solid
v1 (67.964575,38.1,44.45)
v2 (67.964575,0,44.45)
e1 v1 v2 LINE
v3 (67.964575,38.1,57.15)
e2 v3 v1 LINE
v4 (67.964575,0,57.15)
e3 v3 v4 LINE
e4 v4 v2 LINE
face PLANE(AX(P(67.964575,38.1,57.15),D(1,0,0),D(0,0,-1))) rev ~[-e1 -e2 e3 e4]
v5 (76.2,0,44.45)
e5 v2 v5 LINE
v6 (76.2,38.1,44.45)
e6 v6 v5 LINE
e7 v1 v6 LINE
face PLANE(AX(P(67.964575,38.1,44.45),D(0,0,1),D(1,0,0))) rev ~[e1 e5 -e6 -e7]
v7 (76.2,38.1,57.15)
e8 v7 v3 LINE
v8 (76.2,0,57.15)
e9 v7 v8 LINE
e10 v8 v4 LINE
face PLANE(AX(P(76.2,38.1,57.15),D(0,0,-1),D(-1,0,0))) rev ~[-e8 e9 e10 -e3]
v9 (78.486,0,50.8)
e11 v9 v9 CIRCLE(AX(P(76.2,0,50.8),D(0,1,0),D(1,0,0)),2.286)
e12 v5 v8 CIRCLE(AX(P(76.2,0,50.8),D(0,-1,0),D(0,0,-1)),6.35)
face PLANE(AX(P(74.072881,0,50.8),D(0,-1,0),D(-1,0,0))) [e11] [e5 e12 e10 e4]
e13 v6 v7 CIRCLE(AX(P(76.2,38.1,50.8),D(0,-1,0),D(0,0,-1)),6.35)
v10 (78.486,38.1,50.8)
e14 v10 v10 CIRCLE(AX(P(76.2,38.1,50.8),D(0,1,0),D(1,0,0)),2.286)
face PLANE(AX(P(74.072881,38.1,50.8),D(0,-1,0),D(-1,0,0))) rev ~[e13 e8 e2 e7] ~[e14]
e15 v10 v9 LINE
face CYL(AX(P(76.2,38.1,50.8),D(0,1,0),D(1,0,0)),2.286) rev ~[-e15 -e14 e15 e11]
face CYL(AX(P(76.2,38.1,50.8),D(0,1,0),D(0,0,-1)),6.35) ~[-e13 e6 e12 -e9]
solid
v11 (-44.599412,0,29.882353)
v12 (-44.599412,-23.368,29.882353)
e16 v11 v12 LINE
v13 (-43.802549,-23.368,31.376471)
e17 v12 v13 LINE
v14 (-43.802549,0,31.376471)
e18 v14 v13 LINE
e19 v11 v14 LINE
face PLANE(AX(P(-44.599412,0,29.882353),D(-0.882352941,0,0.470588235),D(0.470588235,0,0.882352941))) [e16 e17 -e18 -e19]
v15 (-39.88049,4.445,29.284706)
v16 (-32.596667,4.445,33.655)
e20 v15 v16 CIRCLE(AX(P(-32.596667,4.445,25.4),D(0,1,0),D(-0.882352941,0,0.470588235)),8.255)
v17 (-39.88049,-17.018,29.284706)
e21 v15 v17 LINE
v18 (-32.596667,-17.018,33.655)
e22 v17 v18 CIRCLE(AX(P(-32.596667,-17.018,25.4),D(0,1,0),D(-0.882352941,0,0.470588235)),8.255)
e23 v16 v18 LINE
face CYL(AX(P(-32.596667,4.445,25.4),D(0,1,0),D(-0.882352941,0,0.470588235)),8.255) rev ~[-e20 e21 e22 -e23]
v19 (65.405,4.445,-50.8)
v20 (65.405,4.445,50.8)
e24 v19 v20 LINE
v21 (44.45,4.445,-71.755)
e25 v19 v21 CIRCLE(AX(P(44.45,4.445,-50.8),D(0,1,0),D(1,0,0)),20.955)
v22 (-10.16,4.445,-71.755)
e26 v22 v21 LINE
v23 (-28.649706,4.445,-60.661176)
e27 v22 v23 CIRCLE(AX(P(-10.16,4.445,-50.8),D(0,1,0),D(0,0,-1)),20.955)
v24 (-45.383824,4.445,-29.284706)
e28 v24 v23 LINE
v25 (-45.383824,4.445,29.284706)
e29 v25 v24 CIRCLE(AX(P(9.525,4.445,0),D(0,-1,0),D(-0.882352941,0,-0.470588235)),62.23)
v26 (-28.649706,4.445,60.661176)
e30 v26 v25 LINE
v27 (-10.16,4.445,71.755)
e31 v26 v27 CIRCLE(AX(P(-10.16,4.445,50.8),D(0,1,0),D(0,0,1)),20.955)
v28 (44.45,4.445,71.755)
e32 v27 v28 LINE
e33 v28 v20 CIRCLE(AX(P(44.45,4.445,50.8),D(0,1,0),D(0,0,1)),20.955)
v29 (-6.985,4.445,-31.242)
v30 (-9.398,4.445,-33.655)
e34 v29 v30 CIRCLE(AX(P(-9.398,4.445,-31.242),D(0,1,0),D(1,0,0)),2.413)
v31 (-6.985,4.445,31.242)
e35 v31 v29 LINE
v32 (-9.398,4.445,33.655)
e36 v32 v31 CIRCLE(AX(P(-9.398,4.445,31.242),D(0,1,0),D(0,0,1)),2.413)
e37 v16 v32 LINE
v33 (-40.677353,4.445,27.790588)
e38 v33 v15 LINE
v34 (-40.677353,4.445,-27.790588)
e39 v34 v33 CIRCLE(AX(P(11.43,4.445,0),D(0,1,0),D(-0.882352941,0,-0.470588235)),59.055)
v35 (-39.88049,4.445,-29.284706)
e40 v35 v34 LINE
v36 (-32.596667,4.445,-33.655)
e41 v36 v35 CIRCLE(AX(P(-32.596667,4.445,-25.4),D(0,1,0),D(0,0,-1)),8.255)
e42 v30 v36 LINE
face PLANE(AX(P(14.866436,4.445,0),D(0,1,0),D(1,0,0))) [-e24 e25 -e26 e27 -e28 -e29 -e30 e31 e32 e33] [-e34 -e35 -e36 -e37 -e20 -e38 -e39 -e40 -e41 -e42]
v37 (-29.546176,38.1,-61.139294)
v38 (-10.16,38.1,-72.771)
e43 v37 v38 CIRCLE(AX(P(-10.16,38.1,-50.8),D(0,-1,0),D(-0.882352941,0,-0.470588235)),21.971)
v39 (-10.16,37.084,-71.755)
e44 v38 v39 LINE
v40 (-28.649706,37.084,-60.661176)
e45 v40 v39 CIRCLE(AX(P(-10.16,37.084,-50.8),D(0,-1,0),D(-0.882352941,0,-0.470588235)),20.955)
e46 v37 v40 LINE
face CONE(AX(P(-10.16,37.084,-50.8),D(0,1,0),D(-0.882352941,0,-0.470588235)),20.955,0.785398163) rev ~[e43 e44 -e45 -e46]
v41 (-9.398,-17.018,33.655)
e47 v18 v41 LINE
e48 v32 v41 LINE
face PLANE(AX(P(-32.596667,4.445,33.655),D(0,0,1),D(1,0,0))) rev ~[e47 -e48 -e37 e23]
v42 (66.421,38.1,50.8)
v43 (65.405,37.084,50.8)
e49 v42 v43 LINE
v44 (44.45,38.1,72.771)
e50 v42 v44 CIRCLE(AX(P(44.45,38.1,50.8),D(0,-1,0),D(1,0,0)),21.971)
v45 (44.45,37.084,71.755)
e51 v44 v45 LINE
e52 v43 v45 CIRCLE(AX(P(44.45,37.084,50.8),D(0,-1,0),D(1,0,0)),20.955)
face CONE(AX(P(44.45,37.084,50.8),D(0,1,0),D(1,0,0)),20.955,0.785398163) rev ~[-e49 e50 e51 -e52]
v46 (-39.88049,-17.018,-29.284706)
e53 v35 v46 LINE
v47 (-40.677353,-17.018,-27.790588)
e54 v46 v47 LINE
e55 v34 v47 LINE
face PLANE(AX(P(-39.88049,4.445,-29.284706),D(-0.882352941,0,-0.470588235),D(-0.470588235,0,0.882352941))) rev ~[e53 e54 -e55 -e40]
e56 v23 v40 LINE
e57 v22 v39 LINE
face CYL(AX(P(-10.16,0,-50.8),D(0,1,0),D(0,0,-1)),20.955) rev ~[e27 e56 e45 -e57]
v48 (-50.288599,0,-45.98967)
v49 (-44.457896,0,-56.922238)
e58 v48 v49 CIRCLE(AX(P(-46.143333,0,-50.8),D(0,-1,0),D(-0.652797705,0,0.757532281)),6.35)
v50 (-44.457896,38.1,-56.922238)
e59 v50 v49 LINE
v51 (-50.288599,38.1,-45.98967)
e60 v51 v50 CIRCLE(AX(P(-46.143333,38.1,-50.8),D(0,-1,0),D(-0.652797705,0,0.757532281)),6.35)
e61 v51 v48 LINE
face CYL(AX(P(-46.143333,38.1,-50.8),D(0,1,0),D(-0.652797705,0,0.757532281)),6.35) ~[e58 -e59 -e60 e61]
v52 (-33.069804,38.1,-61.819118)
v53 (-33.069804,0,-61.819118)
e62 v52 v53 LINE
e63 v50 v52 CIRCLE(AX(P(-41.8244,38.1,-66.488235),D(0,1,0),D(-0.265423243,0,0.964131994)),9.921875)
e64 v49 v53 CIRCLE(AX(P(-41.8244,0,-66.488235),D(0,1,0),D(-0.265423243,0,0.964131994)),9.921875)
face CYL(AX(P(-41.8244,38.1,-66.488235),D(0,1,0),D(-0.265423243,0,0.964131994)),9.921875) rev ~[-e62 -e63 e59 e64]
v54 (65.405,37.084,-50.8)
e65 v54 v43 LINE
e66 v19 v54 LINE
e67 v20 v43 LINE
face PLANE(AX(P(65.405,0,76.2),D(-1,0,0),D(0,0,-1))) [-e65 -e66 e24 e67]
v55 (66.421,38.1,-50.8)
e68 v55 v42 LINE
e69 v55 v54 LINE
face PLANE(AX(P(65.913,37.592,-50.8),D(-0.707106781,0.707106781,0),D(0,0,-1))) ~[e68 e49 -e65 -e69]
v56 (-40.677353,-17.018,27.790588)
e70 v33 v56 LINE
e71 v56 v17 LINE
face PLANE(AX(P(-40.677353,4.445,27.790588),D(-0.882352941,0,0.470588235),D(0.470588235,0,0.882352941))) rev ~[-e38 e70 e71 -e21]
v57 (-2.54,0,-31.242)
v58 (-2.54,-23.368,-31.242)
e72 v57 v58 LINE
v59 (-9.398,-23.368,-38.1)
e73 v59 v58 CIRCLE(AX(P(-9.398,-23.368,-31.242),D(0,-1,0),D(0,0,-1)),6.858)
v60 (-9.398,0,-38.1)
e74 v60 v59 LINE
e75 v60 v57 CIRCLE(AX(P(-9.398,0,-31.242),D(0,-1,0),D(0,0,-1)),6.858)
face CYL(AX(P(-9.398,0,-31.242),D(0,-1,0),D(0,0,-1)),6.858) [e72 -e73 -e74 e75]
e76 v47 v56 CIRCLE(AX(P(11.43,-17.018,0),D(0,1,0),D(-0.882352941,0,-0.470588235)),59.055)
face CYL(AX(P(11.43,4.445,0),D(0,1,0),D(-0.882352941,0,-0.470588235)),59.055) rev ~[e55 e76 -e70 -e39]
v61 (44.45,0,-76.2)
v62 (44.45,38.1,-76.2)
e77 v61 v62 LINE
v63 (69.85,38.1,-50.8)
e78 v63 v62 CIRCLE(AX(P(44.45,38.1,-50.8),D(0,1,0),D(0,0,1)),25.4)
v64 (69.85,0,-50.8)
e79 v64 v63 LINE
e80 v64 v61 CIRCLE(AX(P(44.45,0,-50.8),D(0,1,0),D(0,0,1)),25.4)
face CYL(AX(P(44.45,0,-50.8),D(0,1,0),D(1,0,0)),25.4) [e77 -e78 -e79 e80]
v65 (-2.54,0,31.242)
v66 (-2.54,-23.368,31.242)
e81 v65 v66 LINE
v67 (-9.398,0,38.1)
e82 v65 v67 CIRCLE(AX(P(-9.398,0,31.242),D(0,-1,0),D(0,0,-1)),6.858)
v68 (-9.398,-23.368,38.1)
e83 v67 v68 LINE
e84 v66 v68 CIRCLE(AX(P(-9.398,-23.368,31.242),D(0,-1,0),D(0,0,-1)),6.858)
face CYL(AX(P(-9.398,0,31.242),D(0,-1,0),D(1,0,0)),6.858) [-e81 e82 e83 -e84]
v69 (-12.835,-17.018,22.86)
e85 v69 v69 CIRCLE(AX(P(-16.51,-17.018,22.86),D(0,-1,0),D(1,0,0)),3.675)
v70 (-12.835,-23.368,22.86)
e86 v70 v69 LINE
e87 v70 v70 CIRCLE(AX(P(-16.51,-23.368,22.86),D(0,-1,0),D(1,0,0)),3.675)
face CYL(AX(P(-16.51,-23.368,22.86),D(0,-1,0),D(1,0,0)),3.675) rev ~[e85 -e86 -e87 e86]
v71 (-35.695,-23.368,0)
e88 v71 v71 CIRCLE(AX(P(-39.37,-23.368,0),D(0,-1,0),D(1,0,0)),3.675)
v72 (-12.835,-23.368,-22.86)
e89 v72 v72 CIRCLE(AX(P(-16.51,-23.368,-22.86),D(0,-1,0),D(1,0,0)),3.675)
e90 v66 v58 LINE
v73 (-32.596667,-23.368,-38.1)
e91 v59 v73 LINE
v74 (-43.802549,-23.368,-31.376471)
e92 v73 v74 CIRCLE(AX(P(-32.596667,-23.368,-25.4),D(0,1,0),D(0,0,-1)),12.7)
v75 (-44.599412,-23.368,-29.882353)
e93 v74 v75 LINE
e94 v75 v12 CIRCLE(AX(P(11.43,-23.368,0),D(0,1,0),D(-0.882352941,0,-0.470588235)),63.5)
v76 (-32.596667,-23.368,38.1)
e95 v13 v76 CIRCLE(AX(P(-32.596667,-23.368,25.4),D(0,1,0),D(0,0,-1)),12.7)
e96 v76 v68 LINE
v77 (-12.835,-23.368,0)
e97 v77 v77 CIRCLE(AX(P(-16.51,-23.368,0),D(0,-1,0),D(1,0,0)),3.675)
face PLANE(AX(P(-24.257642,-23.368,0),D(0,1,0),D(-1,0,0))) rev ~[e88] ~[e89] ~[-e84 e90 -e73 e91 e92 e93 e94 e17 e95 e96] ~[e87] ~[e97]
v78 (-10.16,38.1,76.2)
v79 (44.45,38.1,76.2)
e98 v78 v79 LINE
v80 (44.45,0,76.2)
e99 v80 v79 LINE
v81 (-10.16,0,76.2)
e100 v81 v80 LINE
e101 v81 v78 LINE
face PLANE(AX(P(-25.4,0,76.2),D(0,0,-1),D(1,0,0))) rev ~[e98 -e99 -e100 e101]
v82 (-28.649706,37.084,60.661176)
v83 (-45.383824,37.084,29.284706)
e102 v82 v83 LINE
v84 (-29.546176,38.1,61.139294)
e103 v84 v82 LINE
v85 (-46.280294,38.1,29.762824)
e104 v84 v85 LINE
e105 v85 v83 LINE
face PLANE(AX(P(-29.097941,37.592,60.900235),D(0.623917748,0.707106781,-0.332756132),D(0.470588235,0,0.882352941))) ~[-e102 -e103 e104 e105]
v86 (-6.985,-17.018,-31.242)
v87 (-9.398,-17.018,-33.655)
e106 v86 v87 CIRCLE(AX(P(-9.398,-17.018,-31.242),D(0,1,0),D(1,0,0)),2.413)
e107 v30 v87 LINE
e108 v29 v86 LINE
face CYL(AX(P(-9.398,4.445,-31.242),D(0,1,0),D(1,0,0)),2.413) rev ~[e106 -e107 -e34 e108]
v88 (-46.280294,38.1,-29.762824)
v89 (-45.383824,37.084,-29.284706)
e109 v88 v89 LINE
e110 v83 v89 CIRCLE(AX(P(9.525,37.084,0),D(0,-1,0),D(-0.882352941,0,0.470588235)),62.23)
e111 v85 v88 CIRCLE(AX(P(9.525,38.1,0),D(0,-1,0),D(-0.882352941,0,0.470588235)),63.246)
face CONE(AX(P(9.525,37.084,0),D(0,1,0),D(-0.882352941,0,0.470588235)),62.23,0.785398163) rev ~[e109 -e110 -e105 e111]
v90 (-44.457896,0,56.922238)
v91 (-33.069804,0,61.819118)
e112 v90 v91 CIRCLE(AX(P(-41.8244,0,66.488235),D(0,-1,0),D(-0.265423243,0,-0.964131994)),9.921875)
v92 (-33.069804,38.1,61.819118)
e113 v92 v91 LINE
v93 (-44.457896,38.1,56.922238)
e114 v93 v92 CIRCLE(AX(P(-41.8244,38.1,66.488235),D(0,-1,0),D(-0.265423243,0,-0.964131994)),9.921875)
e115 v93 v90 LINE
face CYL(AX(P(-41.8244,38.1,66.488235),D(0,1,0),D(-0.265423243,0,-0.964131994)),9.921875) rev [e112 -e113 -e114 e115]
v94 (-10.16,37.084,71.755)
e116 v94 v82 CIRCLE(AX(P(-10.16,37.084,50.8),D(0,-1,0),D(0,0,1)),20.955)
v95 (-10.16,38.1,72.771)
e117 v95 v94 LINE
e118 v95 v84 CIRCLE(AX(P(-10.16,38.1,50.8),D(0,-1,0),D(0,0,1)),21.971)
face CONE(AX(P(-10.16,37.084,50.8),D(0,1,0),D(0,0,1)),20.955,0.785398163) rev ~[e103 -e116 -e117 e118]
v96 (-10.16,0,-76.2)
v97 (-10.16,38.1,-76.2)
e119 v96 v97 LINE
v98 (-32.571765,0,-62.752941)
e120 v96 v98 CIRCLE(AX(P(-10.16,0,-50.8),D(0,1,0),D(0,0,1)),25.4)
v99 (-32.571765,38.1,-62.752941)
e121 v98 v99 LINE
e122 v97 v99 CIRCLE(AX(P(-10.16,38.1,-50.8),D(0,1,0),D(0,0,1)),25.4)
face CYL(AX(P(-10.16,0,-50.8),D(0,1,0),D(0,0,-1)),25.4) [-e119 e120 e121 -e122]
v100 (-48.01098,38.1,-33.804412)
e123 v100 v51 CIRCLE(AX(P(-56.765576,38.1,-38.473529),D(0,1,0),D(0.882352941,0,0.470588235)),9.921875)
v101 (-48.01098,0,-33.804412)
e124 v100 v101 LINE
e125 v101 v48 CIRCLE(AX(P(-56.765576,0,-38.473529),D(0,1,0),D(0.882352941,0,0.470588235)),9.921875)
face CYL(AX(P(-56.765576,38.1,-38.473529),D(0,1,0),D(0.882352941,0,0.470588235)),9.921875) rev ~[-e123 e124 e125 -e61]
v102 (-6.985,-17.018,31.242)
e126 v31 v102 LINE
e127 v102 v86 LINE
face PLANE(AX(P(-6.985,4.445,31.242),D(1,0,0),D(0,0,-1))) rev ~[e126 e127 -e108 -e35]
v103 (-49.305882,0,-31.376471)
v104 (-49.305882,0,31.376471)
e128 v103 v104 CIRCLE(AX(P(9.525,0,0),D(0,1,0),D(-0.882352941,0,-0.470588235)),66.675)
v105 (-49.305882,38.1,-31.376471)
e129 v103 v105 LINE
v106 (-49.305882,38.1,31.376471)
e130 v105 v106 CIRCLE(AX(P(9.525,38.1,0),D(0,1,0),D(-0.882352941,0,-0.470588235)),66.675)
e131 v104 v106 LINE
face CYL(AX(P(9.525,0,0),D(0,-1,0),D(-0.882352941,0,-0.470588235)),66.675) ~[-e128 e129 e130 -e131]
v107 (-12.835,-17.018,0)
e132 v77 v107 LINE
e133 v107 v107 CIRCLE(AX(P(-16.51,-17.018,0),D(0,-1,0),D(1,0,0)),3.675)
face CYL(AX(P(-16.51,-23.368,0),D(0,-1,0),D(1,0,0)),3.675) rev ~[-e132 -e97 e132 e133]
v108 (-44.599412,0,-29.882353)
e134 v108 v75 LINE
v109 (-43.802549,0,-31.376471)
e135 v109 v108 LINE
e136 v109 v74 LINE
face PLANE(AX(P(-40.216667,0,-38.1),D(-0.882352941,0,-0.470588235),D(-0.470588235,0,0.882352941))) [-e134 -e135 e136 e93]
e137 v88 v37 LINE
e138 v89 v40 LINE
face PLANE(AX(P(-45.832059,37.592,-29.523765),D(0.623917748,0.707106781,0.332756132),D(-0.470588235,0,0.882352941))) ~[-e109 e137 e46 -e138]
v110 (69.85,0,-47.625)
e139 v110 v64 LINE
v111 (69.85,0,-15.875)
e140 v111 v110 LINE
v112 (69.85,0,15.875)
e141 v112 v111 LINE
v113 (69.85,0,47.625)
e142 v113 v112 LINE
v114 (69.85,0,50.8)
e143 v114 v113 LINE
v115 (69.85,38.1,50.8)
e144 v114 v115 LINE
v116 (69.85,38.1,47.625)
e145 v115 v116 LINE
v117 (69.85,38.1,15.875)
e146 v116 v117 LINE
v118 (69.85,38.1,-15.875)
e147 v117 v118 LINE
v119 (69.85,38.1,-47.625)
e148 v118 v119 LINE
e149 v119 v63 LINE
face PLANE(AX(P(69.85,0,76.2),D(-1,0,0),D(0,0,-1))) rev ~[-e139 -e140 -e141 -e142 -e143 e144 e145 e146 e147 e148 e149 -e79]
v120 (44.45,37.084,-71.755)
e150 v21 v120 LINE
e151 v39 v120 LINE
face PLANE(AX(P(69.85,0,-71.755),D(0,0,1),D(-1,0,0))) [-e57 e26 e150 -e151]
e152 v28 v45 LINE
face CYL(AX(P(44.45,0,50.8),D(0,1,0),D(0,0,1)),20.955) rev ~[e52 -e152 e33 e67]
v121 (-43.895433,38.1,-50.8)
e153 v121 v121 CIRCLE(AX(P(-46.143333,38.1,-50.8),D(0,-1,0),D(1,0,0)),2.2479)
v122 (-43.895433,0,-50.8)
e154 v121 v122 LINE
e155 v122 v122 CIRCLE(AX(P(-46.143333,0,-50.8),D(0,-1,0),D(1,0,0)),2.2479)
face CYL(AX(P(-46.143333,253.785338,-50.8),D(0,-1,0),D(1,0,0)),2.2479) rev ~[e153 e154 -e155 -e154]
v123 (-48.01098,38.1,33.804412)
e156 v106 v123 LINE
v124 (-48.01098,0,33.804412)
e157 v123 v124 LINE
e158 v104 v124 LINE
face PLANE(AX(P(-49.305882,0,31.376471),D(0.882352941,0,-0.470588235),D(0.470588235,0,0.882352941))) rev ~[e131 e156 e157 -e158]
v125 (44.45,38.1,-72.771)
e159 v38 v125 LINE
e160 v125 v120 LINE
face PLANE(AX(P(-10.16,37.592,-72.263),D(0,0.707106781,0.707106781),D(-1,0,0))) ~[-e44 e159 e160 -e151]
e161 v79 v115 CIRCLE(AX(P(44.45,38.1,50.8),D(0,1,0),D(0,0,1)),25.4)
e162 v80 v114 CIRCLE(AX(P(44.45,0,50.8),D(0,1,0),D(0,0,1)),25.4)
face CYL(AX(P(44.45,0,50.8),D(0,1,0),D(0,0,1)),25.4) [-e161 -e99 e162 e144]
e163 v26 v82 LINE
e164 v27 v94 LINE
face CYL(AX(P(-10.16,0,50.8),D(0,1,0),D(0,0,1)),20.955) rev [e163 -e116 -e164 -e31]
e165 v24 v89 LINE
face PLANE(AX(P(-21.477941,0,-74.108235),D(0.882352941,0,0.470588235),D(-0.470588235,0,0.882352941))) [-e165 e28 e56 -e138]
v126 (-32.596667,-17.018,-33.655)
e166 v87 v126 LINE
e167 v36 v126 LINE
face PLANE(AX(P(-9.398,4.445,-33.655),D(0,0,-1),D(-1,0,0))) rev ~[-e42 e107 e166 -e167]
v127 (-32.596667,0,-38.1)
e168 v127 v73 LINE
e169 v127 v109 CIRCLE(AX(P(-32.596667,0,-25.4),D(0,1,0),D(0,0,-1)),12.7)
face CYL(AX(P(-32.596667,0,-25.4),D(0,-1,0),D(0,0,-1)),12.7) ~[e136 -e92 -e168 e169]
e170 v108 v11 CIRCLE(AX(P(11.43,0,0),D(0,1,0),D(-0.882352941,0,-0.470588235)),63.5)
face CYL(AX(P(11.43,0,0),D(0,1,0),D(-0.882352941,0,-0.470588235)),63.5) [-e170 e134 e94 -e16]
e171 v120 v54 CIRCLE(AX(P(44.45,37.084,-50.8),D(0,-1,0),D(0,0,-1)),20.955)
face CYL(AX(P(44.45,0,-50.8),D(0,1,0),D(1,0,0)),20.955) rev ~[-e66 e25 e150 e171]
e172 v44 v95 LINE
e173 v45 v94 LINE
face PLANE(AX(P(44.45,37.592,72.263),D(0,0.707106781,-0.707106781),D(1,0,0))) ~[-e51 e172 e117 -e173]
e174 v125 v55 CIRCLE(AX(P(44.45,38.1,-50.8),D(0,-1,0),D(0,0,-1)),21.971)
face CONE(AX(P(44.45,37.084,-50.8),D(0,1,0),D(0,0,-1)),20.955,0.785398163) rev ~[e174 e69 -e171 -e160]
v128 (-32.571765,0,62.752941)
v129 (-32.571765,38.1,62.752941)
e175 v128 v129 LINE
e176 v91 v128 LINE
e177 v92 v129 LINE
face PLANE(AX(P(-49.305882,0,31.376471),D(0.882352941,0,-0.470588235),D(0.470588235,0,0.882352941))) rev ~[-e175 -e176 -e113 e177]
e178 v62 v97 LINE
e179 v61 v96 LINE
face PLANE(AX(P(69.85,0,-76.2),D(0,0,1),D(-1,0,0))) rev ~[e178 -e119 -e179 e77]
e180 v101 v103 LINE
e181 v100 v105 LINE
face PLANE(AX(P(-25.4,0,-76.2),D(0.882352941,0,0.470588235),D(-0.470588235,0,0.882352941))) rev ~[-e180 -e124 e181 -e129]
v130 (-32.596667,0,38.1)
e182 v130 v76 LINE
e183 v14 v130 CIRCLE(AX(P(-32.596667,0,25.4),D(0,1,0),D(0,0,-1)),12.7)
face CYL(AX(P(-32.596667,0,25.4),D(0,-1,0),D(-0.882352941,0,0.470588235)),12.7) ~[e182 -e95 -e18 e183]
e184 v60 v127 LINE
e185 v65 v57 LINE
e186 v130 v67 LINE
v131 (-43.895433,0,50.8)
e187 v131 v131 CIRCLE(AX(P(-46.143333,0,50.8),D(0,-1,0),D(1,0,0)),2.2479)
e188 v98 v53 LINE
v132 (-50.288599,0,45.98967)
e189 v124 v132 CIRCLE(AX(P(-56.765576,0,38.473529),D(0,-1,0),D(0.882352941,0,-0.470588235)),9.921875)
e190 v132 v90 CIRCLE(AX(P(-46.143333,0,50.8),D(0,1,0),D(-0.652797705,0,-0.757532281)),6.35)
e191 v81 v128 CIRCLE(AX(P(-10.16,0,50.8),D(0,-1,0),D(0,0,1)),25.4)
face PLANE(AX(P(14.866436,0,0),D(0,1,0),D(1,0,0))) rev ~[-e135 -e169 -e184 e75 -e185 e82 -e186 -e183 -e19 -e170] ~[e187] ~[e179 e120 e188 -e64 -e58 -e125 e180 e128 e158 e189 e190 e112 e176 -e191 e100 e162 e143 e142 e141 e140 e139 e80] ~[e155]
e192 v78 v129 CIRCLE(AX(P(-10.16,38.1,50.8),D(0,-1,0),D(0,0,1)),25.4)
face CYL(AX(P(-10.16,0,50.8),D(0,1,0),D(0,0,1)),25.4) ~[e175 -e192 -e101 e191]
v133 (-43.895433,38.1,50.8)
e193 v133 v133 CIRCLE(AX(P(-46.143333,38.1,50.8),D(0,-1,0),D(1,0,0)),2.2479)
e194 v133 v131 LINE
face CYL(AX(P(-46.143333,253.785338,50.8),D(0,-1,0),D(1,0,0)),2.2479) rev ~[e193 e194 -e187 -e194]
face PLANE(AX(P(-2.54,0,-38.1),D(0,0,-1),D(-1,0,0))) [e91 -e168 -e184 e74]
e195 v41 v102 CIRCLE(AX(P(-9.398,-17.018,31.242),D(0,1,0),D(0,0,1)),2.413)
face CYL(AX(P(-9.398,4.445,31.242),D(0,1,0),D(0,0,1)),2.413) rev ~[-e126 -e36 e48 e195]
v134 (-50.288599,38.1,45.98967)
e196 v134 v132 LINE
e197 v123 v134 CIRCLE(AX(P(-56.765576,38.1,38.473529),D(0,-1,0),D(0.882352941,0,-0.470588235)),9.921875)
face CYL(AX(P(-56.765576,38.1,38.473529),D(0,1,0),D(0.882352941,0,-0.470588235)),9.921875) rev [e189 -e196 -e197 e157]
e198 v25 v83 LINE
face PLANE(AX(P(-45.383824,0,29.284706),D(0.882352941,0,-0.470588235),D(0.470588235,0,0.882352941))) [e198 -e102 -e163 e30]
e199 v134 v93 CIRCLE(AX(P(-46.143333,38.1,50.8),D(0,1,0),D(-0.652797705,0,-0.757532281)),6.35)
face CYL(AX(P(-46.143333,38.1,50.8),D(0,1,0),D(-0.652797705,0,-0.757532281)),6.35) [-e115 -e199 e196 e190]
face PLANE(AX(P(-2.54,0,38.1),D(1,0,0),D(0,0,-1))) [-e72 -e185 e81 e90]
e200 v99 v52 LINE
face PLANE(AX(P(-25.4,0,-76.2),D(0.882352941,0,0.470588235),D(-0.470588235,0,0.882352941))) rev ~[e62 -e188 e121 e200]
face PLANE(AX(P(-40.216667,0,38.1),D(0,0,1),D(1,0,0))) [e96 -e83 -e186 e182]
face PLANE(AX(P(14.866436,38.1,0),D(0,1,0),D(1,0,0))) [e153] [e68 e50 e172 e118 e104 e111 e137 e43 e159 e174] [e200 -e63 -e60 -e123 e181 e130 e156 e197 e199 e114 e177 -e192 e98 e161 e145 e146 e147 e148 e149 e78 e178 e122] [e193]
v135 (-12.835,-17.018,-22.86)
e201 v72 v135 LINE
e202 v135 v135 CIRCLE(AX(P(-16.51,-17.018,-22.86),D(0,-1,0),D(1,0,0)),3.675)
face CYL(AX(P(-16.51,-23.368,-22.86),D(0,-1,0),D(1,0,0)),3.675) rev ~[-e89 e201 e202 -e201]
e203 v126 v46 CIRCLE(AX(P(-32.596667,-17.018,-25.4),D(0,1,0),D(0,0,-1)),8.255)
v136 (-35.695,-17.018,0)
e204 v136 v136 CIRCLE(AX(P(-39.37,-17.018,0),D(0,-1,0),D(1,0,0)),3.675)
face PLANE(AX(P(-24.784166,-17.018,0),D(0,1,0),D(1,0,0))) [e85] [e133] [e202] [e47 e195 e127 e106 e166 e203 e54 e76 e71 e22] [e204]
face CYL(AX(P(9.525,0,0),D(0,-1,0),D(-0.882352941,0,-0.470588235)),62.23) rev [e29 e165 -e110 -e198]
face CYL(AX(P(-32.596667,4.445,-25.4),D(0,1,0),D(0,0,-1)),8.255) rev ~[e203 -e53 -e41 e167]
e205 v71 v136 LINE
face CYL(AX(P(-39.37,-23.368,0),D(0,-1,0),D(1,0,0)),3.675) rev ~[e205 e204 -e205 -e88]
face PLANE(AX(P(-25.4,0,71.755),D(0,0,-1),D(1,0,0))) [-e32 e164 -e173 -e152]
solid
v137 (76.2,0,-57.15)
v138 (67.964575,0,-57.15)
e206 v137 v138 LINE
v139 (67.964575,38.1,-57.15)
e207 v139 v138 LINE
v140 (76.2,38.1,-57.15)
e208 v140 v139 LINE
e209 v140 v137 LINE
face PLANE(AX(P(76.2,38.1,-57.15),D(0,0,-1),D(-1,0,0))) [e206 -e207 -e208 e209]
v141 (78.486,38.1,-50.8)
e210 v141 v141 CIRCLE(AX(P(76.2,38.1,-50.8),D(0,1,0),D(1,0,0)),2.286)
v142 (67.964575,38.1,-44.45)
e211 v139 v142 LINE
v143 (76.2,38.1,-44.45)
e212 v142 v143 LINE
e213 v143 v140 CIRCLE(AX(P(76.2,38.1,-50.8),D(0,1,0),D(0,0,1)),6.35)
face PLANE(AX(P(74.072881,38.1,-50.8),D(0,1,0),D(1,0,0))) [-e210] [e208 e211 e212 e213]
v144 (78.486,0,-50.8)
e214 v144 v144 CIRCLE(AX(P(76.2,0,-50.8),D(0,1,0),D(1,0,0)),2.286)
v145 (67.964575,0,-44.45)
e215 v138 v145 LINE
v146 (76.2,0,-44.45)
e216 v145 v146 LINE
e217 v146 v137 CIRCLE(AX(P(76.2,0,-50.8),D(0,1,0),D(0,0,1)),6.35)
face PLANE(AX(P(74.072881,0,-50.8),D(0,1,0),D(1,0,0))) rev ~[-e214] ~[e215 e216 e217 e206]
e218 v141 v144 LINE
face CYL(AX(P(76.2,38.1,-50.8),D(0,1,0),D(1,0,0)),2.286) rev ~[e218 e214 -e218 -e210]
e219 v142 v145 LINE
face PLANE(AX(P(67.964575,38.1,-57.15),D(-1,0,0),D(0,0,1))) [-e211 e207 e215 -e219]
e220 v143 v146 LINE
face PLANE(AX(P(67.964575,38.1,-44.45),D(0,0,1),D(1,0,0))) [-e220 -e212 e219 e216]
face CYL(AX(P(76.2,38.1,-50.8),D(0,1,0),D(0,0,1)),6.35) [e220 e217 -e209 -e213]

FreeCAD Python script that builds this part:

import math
import FreeCAD as App
import Part
import Sketcher
Q = App.Units.Quantity


def edges_at(feature, points):
    """Names of the edges that pass closest to the given points."""
    edges = feature.Shape.Edges
    near = lambda p: min(range(len(edges)), key=lambda i: edges[i].distToShape(Part.Vertex(*p))[0])
    return sorted({f"Edge{near(p) + 1}" for p in points})


def faces_at(feature, points):
    """Names of the faces that lie closest to the given points."""
    faces = feature.Shape.Faces
    near = lambda p: min(range(len(faces)), key=lambda i: faces[i].distToShape(Part.Vertex(*p))[0])
    return sorted({f"Face{near(p) + 1}" for p in points})

doc = App.newDocument("Part")
body = doc.addObject("PartDesign::Body", "Body")

# Sketch on XZ plane
sketch1 = body.newObject("Sketcher::SketchObject", "Sketch")
sketch1.AttachmentSupport = (doc.getObject("XZ_Plane"), [""])
sketch1.MapMode = "FlatFace"
sketch1.addGeometry([
    Part.LineSegment(App.Vector(-25, 76, 0), App.Vector(70, 76, 0)),  # 0
    Part.LineSegment(App.Vector(70, 76, 0), App.Vector(70, -76, 0)),  # 1
    Part.LineSegment(App.Vector(70, -76, 0), App.Vector(-25, -76, 0)),  # 2
    Part.LineSegment(App.Vector(-25, -76, 0), App.Vector(-49, -31, 0)),  # 3
    Part.ArcOfCircle(Part.Circle(App.Vector(10, 0, 0), App.Vector(0, 0, 1), 67), math.radians(152), math.radians(208)),  # 4
    Part.LineSegment(App.Vector(-49, 31, 0), App.Vector(-25, 76, 0)),  # 5
], False)
sketch1.addConstraint([
    Sketcher.Constraint("Coincident", 0, 2, 1, 1),
    Sketcher.Constraint("Coincident", 1, 2, 2, 1),
    Sketcher.Constraint("Coincident", 2, 2, 3, 1),
    Sketcher.Constraint("Tangent", 3, 2, 4, 2),
    Sketcher.Constraint("Tangent", 4, 1, 5, 1),
    Sketcher.Constraint("Coincident", 5, 2, 0, 1),
    Sketcher.Constraint("Horizontal", 0),
    Sketcher.Constraint("Vertical", 1),
    Sketcher.Constraint("Horizontal", 2),
    Sketcher.Constraint("Symmetric", 3, 2, 4, 1, -1),
    Sketcher.Constraint("Vertical", 2, 2, 5, 2),
    Sketcher.Constraint("DistanceY", 1, 2, 1, 1, Q("6 in")),
    Sketcher.Constraint("Distance", 3, Q("2 in")),
    Sketcher.Constraint("DistanceX", 2, 2, -1, 1, Q("1 in")),
    Sketcher.Constraint("Radius", 4, Q("2.625 in")),
    Sketcher.Constraint("DistanceX", 0, 1, 0, 2, Q("3.75 in")),
])
pad1 = body.newObject("PartDesign::Pad", "Pad")
pad1.Profile = sketch1
pad1.Length = Q("1.5 in")
pad1.Reversed = True
doc.recompute()

fillet = body.newObject("PartDesign::Fillet", "Fillet")
fillet.Base = (pad1, edges_at(pad1, [
    (69.85, 19.05, 76.2),
    (-25.4, 19.05, 76.2),
    (-25.4, 19.05, -76.2),
    (69.85, 19.05, -76.2),
]))
fillet.Radius = Q("1 in")
doc.recompute()

thickness = body.newObject("PartDesign::Thickness", "Thickness")
thickness.Base = (fillet, faces_at(fillet, [(6.35, 38.1, 0)]))
thickness.Value = Q("0.175 in")
thickness.Reversed = True
thickness.Join = "Intersection"

# Sketch on XZ plane
sketch2 = body.newObject("Sketcher::SketchObject", "Sketch001")
sketch2.AttachmentSupport = (doc.getObject("XZ_Plane"), [""])
sketch2.MapMode = "FlatFace"
sketch2.addGeometry([
    Part.LineSegment(App.Vector(-3, -38, 0), App.Vector(-3, 38, 0)),  # 0
    Part.LineSegment(App.Vector(-3, 38, 0), App.Vector(-40, 38, 0)),  # 1
    Part.LineSegment(App.Vector(-40, 38, 0), App.Vector(-45, 30, 0)),  # 2
    Part.ArcOfCircle(Part.Circle(App.Vector(11, 0, 0), App.Vector(0, 0, 1), 64), math.radians(152), math.radians(208)),  # 3
    Part.LineSegment(App.Vector(-45, -30, 0), App.Vector(-40, -38, 0)),  # 4
    Part.LineSegment(App.Vector(-40, -38, 0), App.Vector(-3, -38, 0)),  # 5
], False)
sketch2.addConstraint([
    Sketcher.Constraint("Coincident", 0, 2, 1, 1),
    Sketcher.Constraint("Coincident", 1, 2, 2, 1),
    Sketcher.Constraint("Tangent", 2, 2, 3, 1),
    Sketcher.Constraint("Tangent", 3, 2, 4, 1),
    Sketcher.Constraint("Coincident", 4, 2, 5, 1),
    Sketcher.Constraint("Coincident", 5, 2, 0, 1),
    Sketcher.Constraint("Vertical", 0),
    Sketcher.Constraint("Horizontal", 1),
    Sketcher.Constraint("Horizontal", 5),
    Sketcher.Constraint("Symmetric", 2, 2, 3, 2, -1),
    Sketcher.Constraint("Vertical", 1, 2, 4, 2),
    Sketcher.Constraint("Radius", 3, Q("2.5 in")),
    Sketcher.Constraint("DistanceY", 0, 1, 0, 2, Q("3 in")),
    Sketcher.Constraint("DistanceX", 0, 2, -1, 1, Q("0.1 in")),
    Sketcher.Constraint("DistanceX", -1, 1, 3, 3, Q("0.45 in")),
    Sketcher.Constraint("DistanceX", 1, 2, 1, 1, 37.676667),
])
pad2 = body.newObject("PartDesign::Pad", "Pad001")
pad2.Profile = sketch2
pad2.Length = Q("0.92 in")
doc.recompute()

fillet2 = body.newObject("PartDesign::Fillet", "Fillet001")
fillet2.Base = (pad2, edges_at(pad2, [(-40.217, -11.684, 38.1), (-40.217, -11.684, -38.1)]))
fillet2.Radius = Q("0.5 in")
doc.recompute()

fillet3 = body.newObject("PartDesign::Fillet", "Fillet002")
fillet3.Base = (fillet2, edges_at(fillet2, [(-2.54, -11.684, 38.1), (-2.54, -11.684, -38.1)]))
fillet3.Radius = Q("0.27 in")

# Sketch on XZ plane
sketch3 = body.newObject("Sketcher::SketchObject", "Sketch002")
sketch3.AttachmentSupport = (doc.getObject("XZ_Plane"), [""])
sketch3.MapMode = "FlatFace"
sketch3.AttachmentOffset = App.Placement(App.Vector(0, 0, -0.175 * 25.4), App.Rotation())
sketch3.addGeometry([
    Part.LineSegment(App.Vector(-32.6, 33.7, 0), App.Vector(-9.4, 33.7, 0)),  # 0
    Part.ArcOfCircle(Part.Circle(App.Vector(-9.4, 31.2, 0), App.Vector(0, 0, 1), 2.4), math.radians(0), math.radians(90)),  # 1
    Part.LineSegment(App.Vector(-7, 31.2, 0), App.Vector(-7, -31.2, 0)),  # 2
    Part.ArcOfCircle(Part.Circle(App.Vector(-9.4, -31.2, 0), App.Vector(0, 0, 1), 2.4), math.radians(-90), math.radians(0)),  # 3
    Part.LineSegment(App.Vector(-9.4, -33.7, 0), App.Vector(-32.6, -33.7, 0)),  # 4
    Part.ArcOfCircle(Part.Circle(App.Vector(-32.6, -25.4, 0), App.Vector(0, 0, 1), 8.3), math.radians(-152), math.radians(-90)),  # 5
    Part.LineSegment(App.Vector(-39.9, -29.3, 0), App.Vector(-40.7, -27.8, 0)),  # 6
    Part.ArcOfCircle(Part.Circle(App.Vector(11.4, 0, 0), App.Vector(0, 0, 1), 59.1), math.radians(152), math.radians(208)),  # 7
    Part.LineSegment(App.Vector(-40.7, 27.8, 0), App.Vector(-39.9, 29.3, 0)),  # 8
    Part.ArcOfCircle(Part.Circle(App.Vector(-32.6, 25.4, 0), App.Vector(0, 0, 1), 8.3), math.radians(90), math.radians(152)),  # 9
], False)
sketch3.addConstraint([
    Sketcher.Constraint("Tangent", 0, 2, 1, 2),
    Sketcher.Constraint("Tangent", 1, 1, 2, 1),
    Sketcher.Constraint("Tangent", 2, 2, 3, 2),
    Sketcher.Constraint("Tangent", 3, 1, 4, 1),
    Sketcher.Constraint("Tangent", 4, 2, 5, 2),
    Sketcher.Constraint("Tangent", 5, 1, 6, 1),
    Sketcher.Constraint("Tangent", 6, 2, 7, 2),
    Sketcher.Constraint("Tangent", 7, 1, 8, 1),
    Sketcher.Constraint("Tangent", 8, 2, 9, 2),
    Sketcher.Constraint("Tangent", 9, 1, 0, 1),
    Sketcher.Constraint("Horizontal", 0),
    Sketcher.Constraint("Vertical", 2),
    Sketcher.Constraint("Horizontal", 4),
    Sketcher.Constraint("Equal", 1, 3),
    Sketcher.Constraint("Equal", 5, 9),
    Sketcher.Constraint("Symmetric", 5, 3, 9, 3, -1),
    Sketcher.Constraint("PointOnObject", 7, 3, -1),
    Sketcher.Constraint("DistanceY", 5, 3, -1, 1, Q("1 in")),
    Sketcher.Constraint("Radius", 1, Q("0.095 in")),
    Sketcher.Constraint("Radius", 5, Q("0.325 in")),
    Sketcher.Constraint("Radius", 7, Q("2.325 in")),
    Sketcher.Constraint("DistanceX", 1, 3, -1, 1, Q("0.37 in")),
    Sketcher.Constraint("DistanceX", -1, 1, 7, 3, Q("0.45 in")),
    Sketcher.Constraint("DistanceX", 0, 1, 0, 2, 23.198667),
])
pocket1 = body.newObject("PartDesign::Pocket", "Pocket")
pocket1.Profile = sketch3
pocket1.Length = Q("0.845 in")
pocket1.Reversed = True
doc.recompute()

chamfer = body.newObject("PartDesign::Chamfer", "Chamfer")
chamfer.Base = (pocket1, edges_at(pocket1, [
    (-37.017, 38.1, 44.973),
    (-20.941, 38.1, 68.769),
    (17.145, 38.1, 71.755),
    (59.267, 38.1, 65.617),
    (65.405, 38.1, 0),
    (59.267, 38.1, -65.617),
    (17.145, 38.1, -71.755),
    (-20.941, 38.1, -68.769),
    (-37.017, 38.1, -44.973),
    (-52.705, 38.1, 0),
]))
chamfer.Size = Q("0.04 in")

# Sketch on XZ plane
sketch4 = body.newObject("Sketcher::SketchObject", "Sketch003")
sketch4.AttachmentSupport = (doc.getObject("XZ_Plane"), [""])
sketch4.MapMode = "FlatFace"
sketch4.AttachmentOffset = App.Placement(App.Vector(0, 0, -1.5 * 25.4), App.Rotation())
sketch4.addGeometry([
    Part.LineSegment(App.Vector(70, -48, 0), App.Vector(70, -16, 0)),  # 0
    Part.ArcOfCircle(Part.Circle(App.Vector(80, -16, 0), App.Vector(0, 0, 1), 10), math.radians(180), math.radians(257)),  # 1
    Part.ArcOfCircle(Part.Circle(App.Vector(76, -32, 0), App.Vector(0, 0, 1), 6), math.radians(-77), math.radians(77)),  # 2
    Part.ArcOfCircle(Part.Circle(App.Vector(80, -48, 0), App.Vector(0, 0, 1), 10), math.radians(103), math.radians(180)),  # 3
    Part.LineSegment(App.Vector(70, 16, 0), App.Vector(70, 48, 0)),  # 4
    Part.ArcOfCircle(Part.Circle(App.Vector(80, 48, 0), App.Vector(0, 0, 1), 10), math.radians(180), math.radians(257)),  # 5
    Part.ArcOfCircle(Part.Circle(App.Vector(76, 32, 0), App.Vector(0, 0, 1), 6), math.radians(-77), math.radians(77)),  # 6
    Part.ArcOfCircle(Part.Circle(App.Vector(80, 16, 0), App.Vector(0, 0, 1), 10), math.radians(103), math.radians(180)),  # 7
    Part.LineSegment(App.Vector(-48, -34, 0), App.Vector(-33, -62, 0)),  # 8
    Part.ArcOfCircle(Part.Circle(App.Vector(-42, -66, 0), App.Vector(0, 0, 1), 10), math.radians(28), math.radians(105)),  # 9
    Part.ArcOfCircle(Part.Circle(App.Vector(-46, -51, 0), App.Vector(0, 0, 1), 6), math.radians(131), math.radians(285)),  # 10
    Part.ArcOfCircle(Part.Circle(App.Vector(-57, -38, 0), App.Vector(0, 0, 1), 10), math.radians(-49), math.radians(28)),  # 11
    Part.LineSegment(App.Vector(-33, 62, 0), App.Vector(-48, 34, 0)),  # 12
    Part.ArcOfCircle(Part.Circle(App.Vector(-57, 38, 0), App.Vector(0, 0, 1), 10), math.radians(-28), math.radians(49)),  # 13
    Part.ArcOfCircle(Part.Circle(App.Vector(-46, 51, 0), App.Vector(0, 0, 1), 6), math.radians(75), math.radians(229)),  # 14
    Part.ArcOfCircle(Part.Circle(App.Vector(-42, 66, 0), App.Vector(0, 0, 1), 10), math.radians(-105), math.radians(-28)),  # 15
], False)
sketch4.addConstraint([
    Sketcher.Constraint("Tangent", 0, 2, 1, 1),
    Sketcher.Constraint("Tangent", 1, 2, 2, 2),
    Sketcher.Constraint("Tangent", 2, 1, 3, 1),
    Sketcher.Constraint("Tangent", 3, 2, 0, 1),
    Sketcher.Constraint("Tangent", 4, 2, 5, 1),
    Sketcher.Constraint("Tangent", 5, 2, 6, 2),
    Sketcher.Constraint("Tangent", 6, 1, 7, 1),
    Sketcher.Constraint("Tangent", 7, 2, 4, 1),
    Sketcher.Constraint("Tangent", 8, 2, 9, 1),
    Sketcher.Constraint("Tangent", 9, 2, 10, 2),
    Sketcher.Constraint("Tangent", 10, 1, 11, 1),
    Sketcher.Constraint("Tangent", 11, 2, 8, 1),
    Sketcher.Constraint("Tangent", 12, 2, 13, 1),
    Sketcher.Constraint("Tangent", 13, 2, 14, 2),
    Sketcher.Constraint("Tangent", 14, 1, 15, 1),
    Sketcher.Constraint("Tangent", 15, 2, 12, 1),
    Sketcher.Constraint("Vertical", 0),
    Sketcher.Constraint("Vertical", 4),
    Sketcher.Constraint("Equal", 1, 3),
    Sketcher.Constraint("Equal", 3, 5),
    Sketcher.Constraint("Equal", 2, 6),
    Sketcher.Constraint("Equal", 5, 7),
    Sketcher.Constraint("Equal", 7, 9),
    Sketcher.Constraint("Equal", 6, 10),
    Sketcher.Constraint("Equal", 9, 11),
    Sketcher.Constraint("Equal", 11, 13),
    Sketcher.Constraint("Equal", 10, 14),
    Sketcher.Constraint("Equal", 13, 15),
    Sketcher.Constraint("Symmetric", 3, 3, 5, 3, -1),
    Sketcher.Constraint("Symmetric", 11, 3, 13, 3, -1),
    Sketcher.Constraint("Symmetric", 9, 3, 15, 3, -1),
    Sketcher.Constraint("Vertical", 2, 3, 6, 3),
    Sketcher.Constraint("Radius", 2, Q("0.25 in")),
    Sketcher.Constraint("DistanceX", -1, 1, 2, 3, Q("3 in")),
    Sketcher.Constraint("DistanceY", 10, 3, -1, 1, Q("2 in")),
    Sketcher.Constraint("Radius", 1, Q("0.390625 in")),
    Sketcher.Constraint("DistanceY", 0, 1, 0, 2, Q("1.25 in")),
    Sketcher.Constraint("DistanceY", 1, 3, 5, 3, Q("2.5 in")),
    Sketcher.Constraint("Distance", 8, Q("1.25 in")),
    Sketcher.Constraint("DistanceX", 9, 3, -1, 1, 41.8244),
    Sketcher.Constraint("DistanceX", 10, 1, -1, 1, 50.288599),
])
pad3 = body.newObject("PartDesign::Pad", "Pad002")
pad3.Profile = sketch4
pad3.Length = Q("1.5 in")

# Sketch on XZ plane
sketch5 = body.newObject("Sketcher::SketchObject", "Sketch004")
sketch5.AttachmentSupport = (doc.getObject("XZ_Plane"), [""])
sketch5.MapMode = "FlatFace"
sketch5.AttachmentOffset = App.Placement(App.Vector(0, 0, -1.5 * 25.4), App.Rotation())
sketch5.addGeometry([
    Part.Circle(App.Vector(-46.1, -50.8, 0), App.Vector(0, 0, 1), 2.2),
    Part.Circle(App.Vector(-46.1, 50.8, 0), App.Vector(0, 0, 1), 2.2),
    Part.Circle(App.Vector(76.2, 31.8, 0), App.Vector(0, 0, 1), 2.2),
    Part.Circle(App.Vector(76.2, -31.8, 0), App.Vector(0, 0, 1), 2.2),
], False)
sketch5.addConstraint([
    Sketcher.Constraint("Equal", 0, 1),
    Sketcher.Constraint("Equal", 1, 2),
    Sketcher.Constraint("Equal", 2, 3),
    Sketcher.Constraint("Symmetric", 0, 3, 1, 3, -1),
    Sketcher.Constraint("Symmetric", 2, 3, 3, 3, -1),
    Sketcher.Constraint("Diameter", 0, Q("0.177 in")),
    Sketcher.Constraint("DistanceY", 0, 3, -1, 1, Q("2 in")),
    Sketcher.Constraint("DistanceX", -1, 1, 2, 3, Q("3 in")),
    Sketcher.Constraint("DistanceY", 3, 3, 2, 3, Q("2.5 in")),
    Sketcher.Constraint("DistanceX", 0, 3, -1, 1, 46.143333),
])
doc.recompute()
hole = body.newObject("PartDesign::Hole", "Hole")
hole.Profile = sketch5
hole.ThreadType = "None"
hole.Diameter = Q("0.177 in")
hole.DepthType = "ThroughAll"
hole.Reversed = True

# Sketch on XZ plane
sketch6 = body.newObject("Sketcher::SketchObject", "Sketch005")
sketch6.AttachmentSupport = (doc.getObject("XZ_Plane"), [""])
sketch6.MapMode = "FlatFace"
sketch6.AttachmentOffset = App.Placement(App.Vector(0, 0, 0.92 * 25.4), App.Rotation())
sketch6.addGeometry([
    Part.Circle(App.Vector(-16.5, 22.9, 0), App.Vector(0, 0, 1), 3.7),
    Part.Circle(App.Vector(-16.5, 0, 0), App.Vector(0, 0, 1), 3.7),
    Part.Circle(App.Vector(-16.5, -22.9, 0), App.Vector(0, 0, 1), 3.7),
    Part.Circle(App.Vector(-39.4, 0, 0), App.Vector(0, 0, 1), 3.7),
], False)
sketch6.addConstraint([
    Sketcher.Constraint("Equal", 0, 1),
    Sketcher.Constraint("Equal", 1, 2),
    Sketcher.Constraint("Equal", 2, 3),
    Sketcher.Constraint("Symmetric", 0, 3, 2, 3, -1),
    Sketcher.Constraint("PointOnObject", 1, 3, -1),
    Sketcher.Constraint("PointOnObject", 3, 3, -1),
    Sketcher.Constraint("Vertical", 0, 3, 1, 3),
    Sketcher.Constraint("DistanceY", -1, 1, 0, 3, Q("0.9 in")),
    Sketcher.Constraint("DistanceX", 3, 3, 1, 3, Q("0.9 in")),
    Sketcher.Constraint("Diameter", 0, 7.35),
    Sketcher.Constraint("DistanceX", 0, 3, -1, 1, Q("0.65 in")),
])
pocket2 = body.newObject("PartDesign::Pocket", "Pocket001")
pocket2.Profile = sketch6
pocket2.Type = "ThroughAll"

# Sketch on XZ plane
sketch7 = body.newObject("Sketcher::SketchObject", "Sketch006")
sketch7.AttachmentSupport = (doc.getObject("XZ_Plane"), [""])
sketch7.MapMode = "FlatFace"
sketch7.AttachmentOffset = App.Placement(App.Vector(0, 0, -1.5 * 25.4), App.Rotation())
sketch7.addGeometry([
    Part.LineSegment(App.Vector(70, -48, 0), App.Vector(70, 51, 0)),
    Part.LineSegment(App.Vector(70, 51, 0), App.Vector(88, 51, 0)),
    Part.LineSegment(App.Vector(88, 51, 0), App.Vector(88, -48, 0)),
    Part.LineSegment(App.Vector(88, -48, 0), App.Vector(70, -48, 0)),
], False)
sketch7.addConstraint([
    Sketcher.Constraint("Coincident", 0, 2, 1, 1),
    Sketcher.Constraint("Coincident", 1, 2, 2, 1),
    Sketcher.Constraint("Coincident", 2, 2, 3, 1),
    Sketcher.Constraint("Coincident", 3, 2, 0, 1),
    Sketcher.Constraint("Vertical", 0),
    Sketcher.Constraint("Horizontal", 1),
    Sketcher.Constraint("Vertical", 2),
    Sketcher.Constraint("Horizontal", 3),
    Sketcher.Constraint("DistanceX", -1, 1, 0, 2, Q("2.75 in")),
    Sketcher.Constraint("DistanceY", 2, 2, -1, 1, Q("1.875 in")),
    Sketcher.Constraint("DistanceX", 1, 1, 1, 2, 17.900644),
    Sketcher.Constraint("DistanceY", 0, 1, 0, 2, 98.827895),
])
pocket3 = body.newObject("PartDesign::Pocket", "Pocket002")
pocket3.Profile = sketch7
pocket3.Type = "ThroughAll"
pocket3.Reversed = True
body2 = doc.addObject("PartDesign::Body", "Body001")

# Sketch on XZ plane
sketch8 = body2.newObject("Sketcher::SketchObject", "Sketch007")
sketch8.AttachmentSupport = (doc.getObject("XZ_Plane001"), [""])
sketch8.MapMode = "FlatFace"
sketch8.AttachmentOffset = App.Placement(App.Vector(0, 0, -1.5 * 25.4), App.Rotation())
sketch8.addGeometry([
    Part.LineSegment(App.Vector(76.2, -57.1, 0), App.Vector(68, -57.1, 0)),  # 0
    Part.LineSegment(App.Vector(68, -57.1, 0), App.Vector(68, -44.5, 0)),  # 1
    Part.LineSegment(App.Vector(68, -44.5, 0), App.Vector(76.2, -44.5, 0)),  # 2
    Part.ArcOfCircle(Part.Circle(App.Vector(76.2, -50.8, 0), App.Vector(0, 0, 1), 6.3), math.radians(-90), math.radians(90)),  # 3
    Part.Circle(App.Vector(76.2, -50.8, 0), App.Vector(0, 0, 1), 2.3),  # 4
], False)
sketch8.addConstraint([
    Sketcher.Constraint("Coincident", 0, 2, 1, 1),
    Sketcher.Constraint("Coincident", 1, 2, 2, 1),
    Sketcher.Constraint("Tangent", 2, 2, 3, 2),
    Sketcher.Constraint("Tangent", 3, 1, 0, 1),
    Sketcher.Constraint("Horizontal", 0),
    Sketcher.Constraint("Vertical", 1),
    Sketcher.Constraint("Horizontal", 2),
    Sketcher.Constraint("Coincident", 4, 3, 3, 3),
    Sketcher.Constraint("Diameter", 4, Q("0.18 in")),
    Sketcher.Constraint("Radius", 3, Q("0.25 in")),
    Sketcher.Constraint("DistanceX", -1, 1, 3, 3, Q("3 in")),
    Sketcher.Constraint("DistanceY", 3, 3, -1, 1, Q("2 in")),
    Sketcher.Constraint("DistanceX", 0, 2, 0, 1, 8.235425),
])
pad4 = body2.newObject("PartDesign::Pad", "Pad003")
pad4.Profile = sketch8
pad4.Length = Q("1.5 in")
body3 = doc.addObject("PartDesign::Body", "Body002")

# Sketch on XZ plane
sketch9 = body3.newObject("Sketcher::SketchObject", "Sketch008")
sketch9.AttachmentSupport = (doc.getObject("XZ_Plane002"), [""])
sketch9.MapMode = "FlatFace"
sketch9.AttachmentOffset = App.Placement(App.Vector(0, 0, -1.5 * 25.4), App.Rotation())
sketch9.addGeometry([
    Part.LineSegment(App.Vector(76.2, 44.5, 0), App.Vector(68, 44.5, 0)),  # 0
    Part.LineSegment(App.Vector(68, 44.5, 0), App.Vector(68, 57.1, 0)),  # 1
    Part.LineSegment(App.Vector(68, 57.1, 0), App.Vector(76.2, 57.1, 0)),  # 2
    Part.ArcOfCircle(Part.Circle(App.Vector(76.2, 50.8, 0), App.Vector(0, 0, 1), 6.3), math.radians(-90), math.radians(90)),  # 3
    Part.Circle(App.Vector(76.2, 50.8, 0), App.Vector(0, 0, 1), 2.3),  # 4
], False)
sketch9.addConstraint([
    Sketcher.Constraint("Coincident", 0, 2, 1, 1),
    Sketcher.Constraint("Coincident", 1, 2, 2, 1),
    Sketcher.Constraint("Tangent", 2, 2, 3, 2),
    Sketcher.Constraint("Tangent", 3, 1, 0, 1),
    Sketcher.Constraint("Horizontal", 0),
    Sketcher.Constraint("Vertical", 1),
    Sketcher.Constraint("Horizontal", 2),
    Sketcher.Constraint("Coincident", 4, 3, 3, 3),
    Sketcher.Constraint("Diameter", 4, Q("0.18 in")),
    Sketcher.Constraint("Radius", 3, Q("0.25 in")),
    Sketcher.Constraint("DistanceX", -1, 1, 3, 3, Q("3 in")),
    Sketcher.Constraint("DistanceY", -1, 1, 3, 3, Q("2 in")),
    Sketcher.Constraint("DistanceX", 0, 2, 0, 1, 8.235425),
])
pad5 = body3.newObject("PartDesign::Pad", "Pad004")
pad5.Profile = sketch9
pad5.Length = Q("1.5 in")

doc.recompute()
